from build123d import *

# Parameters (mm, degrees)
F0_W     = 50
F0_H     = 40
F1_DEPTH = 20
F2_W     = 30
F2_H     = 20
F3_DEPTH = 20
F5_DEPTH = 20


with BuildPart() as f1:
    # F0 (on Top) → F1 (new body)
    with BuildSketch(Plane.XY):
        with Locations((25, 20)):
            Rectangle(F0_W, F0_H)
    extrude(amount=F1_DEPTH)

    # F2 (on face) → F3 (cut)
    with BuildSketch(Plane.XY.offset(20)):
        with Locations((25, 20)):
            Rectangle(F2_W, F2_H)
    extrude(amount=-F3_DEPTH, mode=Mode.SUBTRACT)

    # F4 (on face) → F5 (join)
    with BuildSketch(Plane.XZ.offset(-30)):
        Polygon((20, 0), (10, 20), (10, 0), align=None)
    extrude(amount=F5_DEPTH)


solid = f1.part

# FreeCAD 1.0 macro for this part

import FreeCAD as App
import Part
import Sketcher

V = App.Vector


def add_polygon(sketch, points):
    """Adds a closed chain of lines whose ends are joined by coincident constraints."""
    first, n = sketch.GeometryCount, len(points)
    for a, b in zip(points, points[1:] + points[:1]):
        sketch.addGeometry(Part.LineSegment(App.Vector(*a, 0), App.Vector(*b, 0)), False)
    for i in range(n):
        sketch.addConstraint(Sketcher.Constraint("Coincident", first + i, 2, first + (i + 1) % n, 1))

doc = App.newDocument("Part")
body = doc.addObject("PartDesign::Body", "Body")

# Sketch on XY plane
sketch1 = body.newObject("Sketcher::SketchObject", "Sketch")
sketch1.AttachmentSupport = (doc.getObject("XY_Plane"), [""])
sketch1.MapMode = "FlatFace"
add_polygon(sketch1, [(0, 40), (0, 0), (50, 0), (50, 40)])  # lines 0-3
sketch1.addConstraint([
    Sketcher.Constraint("Vertical", 0),
    Sketcher.Constraint("Horizontal", 1),
    Sketcher.Constraint("Vertical", 2),
    Sketcher.Constraint("Horizontal", 3),
    Sketcher.Constraint("Coincident", 0, 2, -1, 1),
    Sketcher.Constraint("DistanceX", 1, 1, 1, 2, 50.0),
    Sketcher.Constraint("DistanceY", 0, 2, 0, 1, 40.0),
])
pad1 = body.newObject("PartDesign::Pad", "Pad")
pad1.Profile = sketch1
pad1.Length = 20

# Sketch on XY plane
sketch2 = body.newObject("Sketcher::SketchObject", "Sketch001")
sketch2.AttachmentSupport = (doc.getObject("XY_Plane"), [""])
sketch2.MapMode = "FlatFace"
sketch2.AttachmentOffset = App.Placement(V(0, 0, 20), App.Rotation())
add_polygon(sketch2, [(10, 30), (10, 10), (40, 10), (40, 30)])  # lines 0-3
sketch2.addConstraint([
    Sketcher.Constraint("Vertical", 0),
    Sketcher.Constraint("Horizontal", 1),
    Sketcher.Constraint("Vertical", 2),
    Sketcher.Constraint("Horizontal", 3),
    Sketcher.Constraint("DistanceX", 1, 1, 1, 2, 30.0),
    Sketcher.Constraint("DistanceY", 0, 2, 0, 1, 20.0),
    Sketcher.Constraint("DistanceX", -1, 1, 0, 2, 10.0),
    Sketcher.Constraint("DistanceY", -1, 1, 0, 2, 10.0),
])
pocket1 = body.newObject("PartDesign::Pocket", "Pocket")
pocket1.Profile = sketch2
pocket1.Length = 20

# Sketch on XZ plane
sketch3 = body.newObject("Sketcher::SketchObject", "Sketch002")
sketch3.AttachmentSupport = (doc.getObject("XZ_Plane"), [""])
sketch3.MapMode = "FlatFace"
sketch3.AttachmentOffset = App.Placement(V(0, 0, -30), App.Rotation())
add_polygon(sketch3, [(20, 0), (10, 20), (10, 0)])  # lines 0-2
sketch3.addConstraint([
    Sketcher.Constraint("Vertical", 1),
    Sketcher.Constraint("Horizontal", 2),
    Sketcher.Constraint("PointOnObject", 1, 2, -1),
    Sketcher.Constraint("DistanceX", 2, 1, 2, 2, 10.0),
    Sketcher.Constraint("DistanceY", 1, 2, 1, 1, 20.0),
    Sketcher.Constraint("DistanceX", -1, 1, 0, 2, 10.0),
])
pad2 = body.newObject("PartDesign::Pad", "Pad001")
pad2.Profile = sketch3
pad2.Length = 20

doc.recompute()
